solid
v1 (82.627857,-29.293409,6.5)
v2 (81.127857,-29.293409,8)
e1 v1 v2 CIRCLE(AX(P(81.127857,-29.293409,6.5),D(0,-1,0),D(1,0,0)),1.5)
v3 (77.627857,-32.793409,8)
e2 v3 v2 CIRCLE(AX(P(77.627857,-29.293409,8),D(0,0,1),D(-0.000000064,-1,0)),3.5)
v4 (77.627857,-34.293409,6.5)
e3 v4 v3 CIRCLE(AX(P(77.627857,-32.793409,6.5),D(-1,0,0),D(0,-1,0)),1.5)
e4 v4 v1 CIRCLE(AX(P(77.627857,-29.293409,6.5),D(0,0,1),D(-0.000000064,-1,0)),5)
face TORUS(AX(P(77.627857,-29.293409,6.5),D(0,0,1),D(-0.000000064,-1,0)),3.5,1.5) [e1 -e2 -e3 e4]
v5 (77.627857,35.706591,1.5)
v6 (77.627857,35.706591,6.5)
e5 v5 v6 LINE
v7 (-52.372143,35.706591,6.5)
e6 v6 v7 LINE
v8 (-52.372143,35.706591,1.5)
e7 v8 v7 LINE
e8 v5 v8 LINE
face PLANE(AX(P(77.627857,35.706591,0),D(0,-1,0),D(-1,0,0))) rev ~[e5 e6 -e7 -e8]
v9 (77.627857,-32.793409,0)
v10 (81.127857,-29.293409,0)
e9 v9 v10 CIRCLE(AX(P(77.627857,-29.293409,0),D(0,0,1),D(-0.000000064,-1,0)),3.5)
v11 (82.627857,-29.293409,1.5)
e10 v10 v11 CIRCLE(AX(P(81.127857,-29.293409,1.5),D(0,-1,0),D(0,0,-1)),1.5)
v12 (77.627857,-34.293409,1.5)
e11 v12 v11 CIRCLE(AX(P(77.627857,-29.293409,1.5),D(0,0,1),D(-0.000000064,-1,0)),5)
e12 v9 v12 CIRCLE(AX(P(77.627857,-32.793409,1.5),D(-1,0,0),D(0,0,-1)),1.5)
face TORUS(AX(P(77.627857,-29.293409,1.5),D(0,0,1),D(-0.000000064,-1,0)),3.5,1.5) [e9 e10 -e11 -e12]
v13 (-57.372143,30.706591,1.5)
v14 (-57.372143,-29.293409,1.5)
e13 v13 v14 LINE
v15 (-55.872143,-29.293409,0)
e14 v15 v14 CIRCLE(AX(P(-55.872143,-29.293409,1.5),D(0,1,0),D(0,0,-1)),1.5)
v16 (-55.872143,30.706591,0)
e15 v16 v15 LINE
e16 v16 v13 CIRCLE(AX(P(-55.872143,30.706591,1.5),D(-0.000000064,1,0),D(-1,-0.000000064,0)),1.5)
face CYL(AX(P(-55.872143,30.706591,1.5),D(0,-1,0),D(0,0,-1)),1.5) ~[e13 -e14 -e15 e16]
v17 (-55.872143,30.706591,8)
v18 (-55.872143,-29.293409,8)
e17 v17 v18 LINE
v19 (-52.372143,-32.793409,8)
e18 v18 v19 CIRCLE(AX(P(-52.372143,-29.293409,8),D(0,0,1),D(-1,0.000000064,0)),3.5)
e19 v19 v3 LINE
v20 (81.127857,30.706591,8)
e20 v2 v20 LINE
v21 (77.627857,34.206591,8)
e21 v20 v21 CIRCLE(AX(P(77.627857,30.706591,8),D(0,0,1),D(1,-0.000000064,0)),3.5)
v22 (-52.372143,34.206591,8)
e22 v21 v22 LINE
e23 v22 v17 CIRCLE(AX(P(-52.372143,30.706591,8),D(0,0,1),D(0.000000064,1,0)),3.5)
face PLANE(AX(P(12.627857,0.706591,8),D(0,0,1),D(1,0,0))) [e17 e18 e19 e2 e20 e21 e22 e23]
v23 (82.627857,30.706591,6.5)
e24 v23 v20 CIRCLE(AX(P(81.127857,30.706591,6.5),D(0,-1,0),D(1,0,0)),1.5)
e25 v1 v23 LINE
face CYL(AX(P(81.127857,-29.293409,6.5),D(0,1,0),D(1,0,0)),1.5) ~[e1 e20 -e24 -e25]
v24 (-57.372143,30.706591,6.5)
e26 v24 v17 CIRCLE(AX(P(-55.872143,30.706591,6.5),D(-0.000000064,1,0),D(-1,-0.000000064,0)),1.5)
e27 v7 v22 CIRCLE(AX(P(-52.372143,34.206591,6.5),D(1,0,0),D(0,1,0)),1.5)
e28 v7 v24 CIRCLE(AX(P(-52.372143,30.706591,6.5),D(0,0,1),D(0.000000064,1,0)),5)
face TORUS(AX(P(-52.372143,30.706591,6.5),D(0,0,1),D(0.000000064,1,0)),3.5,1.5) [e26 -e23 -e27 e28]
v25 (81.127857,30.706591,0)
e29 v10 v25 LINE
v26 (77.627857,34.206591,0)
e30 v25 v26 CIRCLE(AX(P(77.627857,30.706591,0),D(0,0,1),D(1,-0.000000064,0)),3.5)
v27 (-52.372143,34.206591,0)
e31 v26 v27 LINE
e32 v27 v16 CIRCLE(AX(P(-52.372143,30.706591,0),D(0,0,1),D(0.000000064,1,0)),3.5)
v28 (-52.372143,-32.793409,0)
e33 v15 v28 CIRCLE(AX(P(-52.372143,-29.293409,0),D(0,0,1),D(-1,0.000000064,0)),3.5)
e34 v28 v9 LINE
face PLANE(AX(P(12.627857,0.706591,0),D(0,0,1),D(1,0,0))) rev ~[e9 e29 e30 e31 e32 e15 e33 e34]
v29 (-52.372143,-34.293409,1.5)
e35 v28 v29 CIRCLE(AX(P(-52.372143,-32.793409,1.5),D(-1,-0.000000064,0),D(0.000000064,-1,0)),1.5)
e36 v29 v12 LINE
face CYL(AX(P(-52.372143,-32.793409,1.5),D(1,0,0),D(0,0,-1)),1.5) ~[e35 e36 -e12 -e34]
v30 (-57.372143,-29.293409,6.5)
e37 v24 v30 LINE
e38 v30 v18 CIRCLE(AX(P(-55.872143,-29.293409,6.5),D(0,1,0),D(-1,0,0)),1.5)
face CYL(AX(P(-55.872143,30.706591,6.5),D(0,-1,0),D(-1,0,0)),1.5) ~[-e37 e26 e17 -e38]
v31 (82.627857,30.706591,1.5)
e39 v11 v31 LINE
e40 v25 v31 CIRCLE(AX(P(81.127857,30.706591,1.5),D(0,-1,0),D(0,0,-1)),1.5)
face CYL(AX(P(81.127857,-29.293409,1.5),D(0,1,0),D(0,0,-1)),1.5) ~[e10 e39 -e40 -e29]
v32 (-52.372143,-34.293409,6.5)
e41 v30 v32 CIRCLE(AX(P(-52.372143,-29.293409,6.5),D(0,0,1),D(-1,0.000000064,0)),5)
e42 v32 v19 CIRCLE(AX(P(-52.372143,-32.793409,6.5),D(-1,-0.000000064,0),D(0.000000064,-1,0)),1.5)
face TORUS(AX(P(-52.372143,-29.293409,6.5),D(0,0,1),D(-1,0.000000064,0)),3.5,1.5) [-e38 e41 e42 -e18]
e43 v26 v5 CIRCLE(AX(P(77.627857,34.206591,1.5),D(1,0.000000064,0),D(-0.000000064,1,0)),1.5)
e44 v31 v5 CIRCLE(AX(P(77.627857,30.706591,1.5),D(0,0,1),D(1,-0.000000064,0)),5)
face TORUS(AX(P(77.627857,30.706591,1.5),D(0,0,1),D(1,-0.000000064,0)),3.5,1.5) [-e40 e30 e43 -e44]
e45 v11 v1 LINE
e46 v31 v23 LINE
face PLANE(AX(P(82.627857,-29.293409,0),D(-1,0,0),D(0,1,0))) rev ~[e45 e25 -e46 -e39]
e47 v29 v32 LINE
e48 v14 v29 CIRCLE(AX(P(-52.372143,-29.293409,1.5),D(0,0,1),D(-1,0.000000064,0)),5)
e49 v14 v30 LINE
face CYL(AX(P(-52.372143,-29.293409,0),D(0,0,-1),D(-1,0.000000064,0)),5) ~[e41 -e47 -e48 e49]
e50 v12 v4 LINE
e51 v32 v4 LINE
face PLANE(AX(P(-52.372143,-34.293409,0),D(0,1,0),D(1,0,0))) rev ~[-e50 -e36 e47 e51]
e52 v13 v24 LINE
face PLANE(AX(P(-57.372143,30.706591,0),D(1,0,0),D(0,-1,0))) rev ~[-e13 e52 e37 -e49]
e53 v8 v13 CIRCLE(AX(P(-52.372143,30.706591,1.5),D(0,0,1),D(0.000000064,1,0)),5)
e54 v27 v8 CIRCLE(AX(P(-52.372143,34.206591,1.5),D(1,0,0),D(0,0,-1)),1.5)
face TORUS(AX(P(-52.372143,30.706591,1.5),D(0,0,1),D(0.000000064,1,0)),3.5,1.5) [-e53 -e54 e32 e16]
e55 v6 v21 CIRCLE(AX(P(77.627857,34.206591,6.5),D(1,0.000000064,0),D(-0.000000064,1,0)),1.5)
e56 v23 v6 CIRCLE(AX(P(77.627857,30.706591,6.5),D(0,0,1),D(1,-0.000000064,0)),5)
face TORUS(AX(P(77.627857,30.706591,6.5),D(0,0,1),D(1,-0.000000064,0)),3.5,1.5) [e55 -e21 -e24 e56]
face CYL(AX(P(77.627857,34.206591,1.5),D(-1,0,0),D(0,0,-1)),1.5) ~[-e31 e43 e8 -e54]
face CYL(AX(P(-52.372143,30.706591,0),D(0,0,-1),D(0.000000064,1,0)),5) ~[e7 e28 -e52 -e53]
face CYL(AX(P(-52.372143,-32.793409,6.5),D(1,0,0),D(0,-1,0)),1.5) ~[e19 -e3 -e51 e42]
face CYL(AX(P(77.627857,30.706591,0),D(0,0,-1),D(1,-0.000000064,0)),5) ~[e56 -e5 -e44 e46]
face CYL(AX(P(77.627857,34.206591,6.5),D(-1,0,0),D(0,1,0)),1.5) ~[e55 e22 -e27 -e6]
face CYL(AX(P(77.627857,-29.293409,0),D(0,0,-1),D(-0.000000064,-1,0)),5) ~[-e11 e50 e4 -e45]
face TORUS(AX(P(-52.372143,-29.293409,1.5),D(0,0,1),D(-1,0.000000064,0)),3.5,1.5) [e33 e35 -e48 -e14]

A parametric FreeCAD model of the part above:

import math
import FreeCAD as App
import Part
import Sketcher
Q = App.Units.Quantity


def edges_at(feature, points):
    """Names of the edges that pass closest to the given points."""
    edges = feature.Shape.Edges
    near = lambda p: min(range(len(edges)), key=lambda i: edges[i].distToShape(Part.Vertex(*p))[0])
    return sorted({f"Edge{near(p) + 1}" for p in points})

doc = App.newDocument("Part")
body = doc.addObject("PartDesign::Body", "Body")

# Sketch on XY plane
sketch1 = body.newObject("Sketcher::SketchObject", "Sketch")
sketch1.AttachmentSupport = (doc.getObject("XY_Plane"), [""])
sketch1.MapMode = "FlatFace"
sketch1.addGeometry([
    Part.LineSegment(App.Vector(77.627857, 35.706591, 0), App.Vector(-52.372143, 35.706591, 0)),  # 0
    Part.ArcOfCircle(Part.Circle(App.Vector(-52.372143, 30.706591, 0), App.Vector(0, 0, 1), 5), math.radians(89.999996), math.radians(180.000004)),  # 1
    Part.LineSegment(App.Vector(-57.372143, 30.706591, 0), App.Vector(-57.372143, -29.293409, 0)),  # 2
    Part.ArcOfCircle(Part.Circle(App.Vector(-52.372143, -29.293409, 0), App.Vector(0, 0, 1), 5), math.radians(179.999996), math.radians(270.000004)),  # 3
    Part.LineSegment(App.Vector(-52.372143, -34.293409, 0), App.Vector(77.627857, -34.293409, 0)),  # 4
    Part.ArcOfCircle(Part.Circle(App.Vector(77.627857, -29.293409, 0), App.Vector(0, 0, 1), 5), math.radians(-90.000004), math.radians(0.000004)),  # 5
    Part.LineSegment(App.Vector(82.627857, -29.293409, 0), App.Vector(82.627857, 30.706591, 0)),  # 6
    Part.ArcOfCircle(Part.Circle(App.Vector(77.627857, 30.706591, 0), App.Vector(0, 0, 1), 5), math.radians(-0.000004), math.radians(90.000004)),  # 7
], False)
sketch1.addConstraint([
    Sketcher.Constraint("Tangent", 0, 2, 1, 1),
    Sketcher.Constraint("Tangent", 1, 2, 2, 1),
    Sketcher.Constraint("Tangent", 2, 2, 3, 1),
    Sketcher.Constraint("Tangent", 3, 2, 4, 1),
    Sketcher.Constraint("Tangent", 4, 2, 5, 1),
    Sketcher.Constraint("Tangent", 5, 2, 6, 1),
    Sketcher.Constraint("Tangent", 6, 2, 7, 1),
    Sketcher.Constraint("Tangent", 7, 2, 0, 1),
    Sketcher.Constraint("Horizontal", 0),
    Sketcher.Constraint("Vertical", 2),
    Sketcher.Constraint("Horizontal", 4),
    Sketcher.Constraint("Vertical", 6),
    Sketcher.Constraint("Equal", 1, 3),
    Sketcher.Constraint("Equal", 3, 5),
    Sketcher.Constraint("Equal", 5, 7),
    Sketcher.Constraint("Radius", 1, Q("5 mm")),
    Sketcher.Constraint("DistanceX", 0, 2, 0, 1, Q("130 mm")),
    Sketcher.Constraint("DistanceY", 2, 2, 2, 1, Q("60 mm")),
    Sketcher.Constraint("DistanceY", -1, 1, 1, 3, Q("30.706591 mm")),
    Sketcher.Constraint("DistanceX", 1, 3, -1, 1, Q("52.372143 mm")),
])
pad1 = body.newObject("PartDesign::Pad", "Pad")
pad1.Profile = sketch1
pad1.Length = 8
doc.recompute()

fillet = body.newObject("PartDesign::Fillet", "Fillet")
fillet.Base = (pad1, edges_at(pad1, [
    (82.628, 0.707, 8),
    (81.163, 34.242, 8),
    (12.628, 35.707, 8),
    (-55.908, 34.242, 8),
    (-57.372, 0.707, 8),
    (-55.908, -32.829, 8),
    (12.628, -34.293, 8),
    (81.163, -32.829, 8),
]))
fillet.Radius = 1.5
doc.recompute()

fillet2 = body.newObject("PartDesign::Fillet", "Fillet001")
fillet2.Base = (fillet, edges_at(fillet, [
    (82.628, 0.707, 0),
    (81.163, 34.242, 0),
    (12.628, 35.707, 0),
    (-55.908, 34.242, 0),
    (-57.372, 0.707, 0),
    (-55.908, -32.829, 0),
    (12.628, -34.293, 0),
    (81.163, -32.829, 0),
]))
fillet2.Radius = 1.5

doc.recompute()
